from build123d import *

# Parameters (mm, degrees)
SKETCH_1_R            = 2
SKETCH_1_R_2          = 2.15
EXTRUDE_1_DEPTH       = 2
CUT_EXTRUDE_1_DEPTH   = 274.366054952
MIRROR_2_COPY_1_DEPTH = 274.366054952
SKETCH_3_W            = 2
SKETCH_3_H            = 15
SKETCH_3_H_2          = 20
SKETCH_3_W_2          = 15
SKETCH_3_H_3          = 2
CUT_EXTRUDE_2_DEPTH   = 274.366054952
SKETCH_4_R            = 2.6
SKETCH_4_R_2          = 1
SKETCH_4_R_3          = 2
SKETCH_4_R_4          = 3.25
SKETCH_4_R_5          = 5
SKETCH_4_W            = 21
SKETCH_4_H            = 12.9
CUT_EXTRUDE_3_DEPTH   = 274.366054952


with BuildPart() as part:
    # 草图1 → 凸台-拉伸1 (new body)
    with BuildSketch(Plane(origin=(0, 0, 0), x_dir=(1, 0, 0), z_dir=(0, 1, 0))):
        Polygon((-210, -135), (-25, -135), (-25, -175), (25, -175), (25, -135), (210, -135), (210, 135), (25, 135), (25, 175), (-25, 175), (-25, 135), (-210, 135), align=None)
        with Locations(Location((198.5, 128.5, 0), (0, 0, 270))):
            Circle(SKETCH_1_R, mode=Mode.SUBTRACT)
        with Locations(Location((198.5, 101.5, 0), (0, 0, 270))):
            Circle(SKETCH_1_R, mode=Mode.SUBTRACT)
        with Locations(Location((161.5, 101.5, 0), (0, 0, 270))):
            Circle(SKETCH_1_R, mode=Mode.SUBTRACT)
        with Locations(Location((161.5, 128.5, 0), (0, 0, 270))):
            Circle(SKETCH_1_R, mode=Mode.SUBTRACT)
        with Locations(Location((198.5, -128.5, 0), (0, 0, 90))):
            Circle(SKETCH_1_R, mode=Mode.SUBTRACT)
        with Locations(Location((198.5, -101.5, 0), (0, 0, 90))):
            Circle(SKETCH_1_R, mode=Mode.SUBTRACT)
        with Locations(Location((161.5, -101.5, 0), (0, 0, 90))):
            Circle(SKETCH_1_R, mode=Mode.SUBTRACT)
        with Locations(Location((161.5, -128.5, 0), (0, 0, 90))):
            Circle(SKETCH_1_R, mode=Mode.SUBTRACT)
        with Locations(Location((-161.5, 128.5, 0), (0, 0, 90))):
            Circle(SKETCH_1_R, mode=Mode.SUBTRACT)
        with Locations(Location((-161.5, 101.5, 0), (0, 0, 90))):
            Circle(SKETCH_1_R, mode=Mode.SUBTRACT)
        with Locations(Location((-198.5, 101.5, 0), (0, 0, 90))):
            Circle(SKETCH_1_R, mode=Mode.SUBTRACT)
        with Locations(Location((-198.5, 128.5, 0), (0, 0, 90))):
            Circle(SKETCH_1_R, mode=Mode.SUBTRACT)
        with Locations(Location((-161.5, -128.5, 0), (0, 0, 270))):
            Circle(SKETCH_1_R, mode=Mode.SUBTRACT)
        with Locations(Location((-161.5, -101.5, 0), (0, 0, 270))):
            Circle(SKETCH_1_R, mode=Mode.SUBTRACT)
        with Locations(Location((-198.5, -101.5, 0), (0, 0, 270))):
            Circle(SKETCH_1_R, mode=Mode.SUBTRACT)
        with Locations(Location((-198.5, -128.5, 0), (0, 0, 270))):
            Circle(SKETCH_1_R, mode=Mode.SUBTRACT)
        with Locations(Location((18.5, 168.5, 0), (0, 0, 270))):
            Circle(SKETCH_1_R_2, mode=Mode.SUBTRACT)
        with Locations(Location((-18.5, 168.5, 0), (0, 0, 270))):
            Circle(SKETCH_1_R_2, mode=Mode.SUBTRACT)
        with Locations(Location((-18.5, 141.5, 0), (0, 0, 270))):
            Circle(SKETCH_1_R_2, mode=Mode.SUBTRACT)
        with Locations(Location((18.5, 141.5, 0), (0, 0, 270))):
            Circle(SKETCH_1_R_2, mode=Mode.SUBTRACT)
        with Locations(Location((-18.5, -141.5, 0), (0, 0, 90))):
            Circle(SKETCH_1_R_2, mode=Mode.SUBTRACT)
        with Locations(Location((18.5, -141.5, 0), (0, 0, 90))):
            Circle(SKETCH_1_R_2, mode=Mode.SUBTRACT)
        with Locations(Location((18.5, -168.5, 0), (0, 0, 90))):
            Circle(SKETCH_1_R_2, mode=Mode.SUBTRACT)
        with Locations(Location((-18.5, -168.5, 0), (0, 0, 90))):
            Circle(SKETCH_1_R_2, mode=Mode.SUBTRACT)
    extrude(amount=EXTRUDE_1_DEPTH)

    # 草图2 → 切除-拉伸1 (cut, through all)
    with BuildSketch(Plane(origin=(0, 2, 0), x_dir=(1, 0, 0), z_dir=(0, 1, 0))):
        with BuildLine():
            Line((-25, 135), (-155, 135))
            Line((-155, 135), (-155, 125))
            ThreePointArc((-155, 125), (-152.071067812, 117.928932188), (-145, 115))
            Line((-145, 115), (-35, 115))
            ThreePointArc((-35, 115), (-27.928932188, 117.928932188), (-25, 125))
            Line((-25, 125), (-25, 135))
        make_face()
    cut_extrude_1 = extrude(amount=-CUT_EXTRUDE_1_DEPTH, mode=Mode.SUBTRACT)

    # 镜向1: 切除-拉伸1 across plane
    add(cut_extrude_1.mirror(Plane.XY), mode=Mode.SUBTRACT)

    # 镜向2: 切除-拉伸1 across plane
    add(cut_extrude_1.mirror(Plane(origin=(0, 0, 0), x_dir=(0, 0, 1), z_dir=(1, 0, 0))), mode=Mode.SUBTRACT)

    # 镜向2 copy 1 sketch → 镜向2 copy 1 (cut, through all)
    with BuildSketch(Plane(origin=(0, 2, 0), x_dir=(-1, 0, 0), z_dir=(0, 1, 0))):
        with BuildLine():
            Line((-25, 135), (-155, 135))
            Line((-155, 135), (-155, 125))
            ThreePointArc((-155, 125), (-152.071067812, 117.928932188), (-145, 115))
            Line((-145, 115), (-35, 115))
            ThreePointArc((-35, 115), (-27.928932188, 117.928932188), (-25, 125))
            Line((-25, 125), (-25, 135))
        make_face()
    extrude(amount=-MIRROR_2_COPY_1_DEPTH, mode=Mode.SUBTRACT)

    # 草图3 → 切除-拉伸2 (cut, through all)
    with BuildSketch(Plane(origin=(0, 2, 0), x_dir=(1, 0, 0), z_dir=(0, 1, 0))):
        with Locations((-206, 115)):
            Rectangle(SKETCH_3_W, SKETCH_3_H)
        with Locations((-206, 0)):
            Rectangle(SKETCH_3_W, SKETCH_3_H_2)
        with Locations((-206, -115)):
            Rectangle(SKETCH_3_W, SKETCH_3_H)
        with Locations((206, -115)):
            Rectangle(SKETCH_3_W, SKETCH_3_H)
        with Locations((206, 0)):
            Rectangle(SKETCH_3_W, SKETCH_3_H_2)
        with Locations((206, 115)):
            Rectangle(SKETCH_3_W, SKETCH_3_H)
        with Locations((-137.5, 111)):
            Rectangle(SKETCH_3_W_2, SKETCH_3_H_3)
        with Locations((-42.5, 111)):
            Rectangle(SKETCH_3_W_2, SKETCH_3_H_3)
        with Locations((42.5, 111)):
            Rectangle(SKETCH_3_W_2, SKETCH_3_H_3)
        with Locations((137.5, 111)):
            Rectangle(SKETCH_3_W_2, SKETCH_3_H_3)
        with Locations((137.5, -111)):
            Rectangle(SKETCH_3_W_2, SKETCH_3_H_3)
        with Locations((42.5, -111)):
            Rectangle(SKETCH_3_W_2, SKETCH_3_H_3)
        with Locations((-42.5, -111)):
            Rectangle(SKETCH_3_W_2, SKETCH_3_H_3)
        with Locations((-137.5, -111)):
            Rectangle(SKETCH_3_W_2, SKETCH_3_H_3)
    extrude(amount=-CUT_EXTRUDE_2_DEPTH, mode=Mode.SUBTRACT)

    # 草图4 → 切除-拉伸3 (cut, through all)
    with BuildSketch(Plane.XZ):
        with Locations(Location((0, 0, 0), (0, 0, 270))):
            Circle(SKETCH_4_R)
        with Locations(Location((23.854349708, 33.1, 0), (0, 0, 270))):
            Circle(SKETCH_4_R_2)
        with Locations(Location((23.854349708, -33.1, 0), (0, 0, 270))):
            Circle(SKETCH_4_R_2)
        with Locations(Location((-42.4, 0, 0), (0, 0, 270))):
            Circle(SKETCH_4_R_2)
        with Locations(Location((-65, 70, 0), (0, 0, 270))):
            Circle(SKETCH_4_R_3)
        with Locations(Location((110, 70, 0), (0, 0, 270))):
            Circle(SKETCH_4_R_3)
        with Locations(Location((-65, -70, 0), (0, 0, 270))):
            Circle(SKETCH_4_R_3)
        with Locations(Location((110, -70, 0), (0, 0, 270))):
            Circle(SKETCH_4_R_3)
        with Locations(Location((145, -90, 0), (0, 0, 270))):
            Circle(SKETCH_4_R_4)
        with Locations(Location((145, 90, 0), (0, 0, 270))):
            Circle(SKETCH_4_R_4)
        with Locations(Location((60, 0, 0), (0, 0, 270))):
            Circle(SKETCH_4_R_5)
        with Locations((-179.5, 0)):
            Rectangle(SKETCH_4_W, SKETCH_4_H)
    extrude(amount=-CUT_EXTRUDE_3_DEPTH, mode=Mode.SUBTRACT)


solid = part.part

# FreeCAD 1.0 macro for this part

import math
import FreeCAD as App
import Part
import Sketcher


def add_polygon(sketch, points):
    """Adds a closed chain of lines whose ends are joined by coincident constraints."""
    first, n = sketch.GeometryCount, len(points)
    for a, b in zip(points, points[1:] + points[:1]):
        sketch.addGeometry(Part.LineSegment(App.Vector(*a, 0), App.Vector(*b, 0)), False)
    for i in range(n):
        sketch.addConstraint(Sketcher.Constraint("Coincident", first + i, 2, first + (i + 1) % n, 1))

doc = App.newDocument("Part")
body = doc.addObject("PartDesign::Body", "Body")

# Sketch on XZ plane
sketch1 = body.newObject("Sketcher::SketchObject", "Sketch")
sketch1.AttachmentSupport = (doc.getObject("XZ_Plane"), [""])
sketch1.MapMode = "FlatFace"
add_polygon(sketch1, [(-210, 135), (-25, 135), (-25, 175), (25, 175), (25, 135), (210, 135), (210, -135), (25, -135), (25, -175), (-25, -175), (-25, -135), (-210, -135)])  # lines 0-11
sketch1.addGeometry(Part.Circle(App.Vector(-198.5, 128.5, 0), App.Vector(0, 0, 1), 2), False)  # 12
sketch1.addGeometry(Part.Circle(App.Vector(-161.5, 128.5, 0), App.Vector(0, 0, 1), 2), False)  # 13
sketch1.addGeometry(Part.Circle(App.Vector(-198.5, 101.5, 0), App.Vector(0, 0, 1), 2), False)  # 14
sketch1.addGeometry(Part.Circle(App.Vector(-161.5, 101.5, 0), App.Vector(0, 0, 1), 2), False)  # 15
sketch1.addGeometry(Part.Circle(App.Vector(-18.5, 168.5, 0), App.Vector(0, 0, 1), 2.1), False)  # 16
sketch1.addGeometry(Part.Circle(App.Vector(-18.5, 141.5, 0), App.Vector(0, 0, 1), 2.1), False)  # 17
sketch1.addGeometry(Part.Circle(App.Vector(18.5, 168.5, 0), App.Vector(0, 0, 1), 2.1), False)  # 18
sketch1.addGeometry(Part.Circle(App.Vector(18.5, 141.5, 0), App.Vector(0, 0, 1), 2.1), False)  # 19
sketch1.addGeometry(Part.Circle(App.Vector(161.5, 128.5, 0), App.Vector(0, 0, 1), 2), False)  # 20
sketch1.addGeometry(Part.Circle(App.Vector(198.5, 128.5, 0), App.Vector(0, 0, 1), 2), False)  # 21
sketch1.addGeometry(Part.Circle(App.Vector(161.5, 101.5, 0), App.Vector(0, 0, 1), 2), False)  # 22
sketch1.addGeometry(Part.Circle(App.Vector(198.5, 101.5, 0), App.Vector(0, 0, 1), 2), False)  # 23
sketch1.addGeometry(Part.Circle(App.Vector(-198.5, -101.5, 0), App.Vector(0, 0, 1), 2), False)  # 24
sketch1.addGeometry(Part.Circle(App.Vector(-161.5, -101.5, 0), App.Vector(0, 0, 1), 2), False)  # 25
sketch1.addGeometry(Part.Circle(App.Vector(-198.5, -128.5, 0), App.Vector(0, 0, 1), 2), False)  # 26
sketch1.addGeometry(Part.Circle(App.Vector(-161.5, -128.5, 0), App.Vector(0, 0, 1), 2), False)  # 27
sketch1.addGeometry(Part.Circle(App.Vector(-18.5, -141.5, 0), App.Vector(0, 0, 1), 2.1), False)  # 28
sketch1.addGeometry(Part.Circle(App.Vector(-18.5, -168.5, 0), App.Vector(0, 0, 1), 2.1), False)  # 29
sketch1.addGeometry(Part.Circle(App.Vector(18.5, -141.5, 0), App.Vector(0, 0, 1), 2.1), False)  # 30
sketch1.addGeometry(Part.Circle(App.Vector(18.5, -168.5, 0), App.Vector(0, 0, 1), 2.1), False)  # 31
sketch1.addGeometry(Part.Circle(App.Vector(161.5, -101.5, 0), App.Vector(0, 0, 1), 2), False)  # 32
sketch1.addGeometry(Part.Circle(App.Vector(198.5, -101.5, 0), App.Vector(0, 0, 1), 2), False)  # 33
sketch1.addGeometry(Part.Circle(App.Vector(161.5, -128.5, 0), App.Vector(0, 0, 1), 2), False)  # 34
sketch1.addGeometry(Part.Circle(App.Vector(198.5, -128.5, 0), App.Vector(0, 0, 1), 2), False)  # 35
sketch1.addConstraint([
    Sketcher.Constraint("Horizontal", 0),
    Sketcher.Constraint("Vertical", 1),
    Sketcher.Constraint("Horizontal", 2),
    Sketcher.Constraint("Vertical", 3),
    Sketcher.Constraint("Horizontal", 4),
    Sketcher.Constraint("Vertical", 5),
    Sketcher.Constraint("Horizontal", 6),
    Sketcher.Constraint("Vertical", 7),
    Sketcher.Constraint("Horizontal", 8),
    Sketcher.Constraint("Vertical", 9),
    Sketcher.Constraint("Horizontal", 10),
    Sketcher.Constraint("Vertical", 11),
    Sketcher.Constraint("Equal", 12, 13),
    Sketcher.Constraint("Equal", 13, 14),
    Sketcher.Constraint("Equal", 14, 15),
    Sketcher.Constraint("Equal", 16, 17),
    Sketcher.Constraint("Equal", 17, 18),
    Sketcher.Constraint("Equal", 18, 19),
    Sketcher.Constraint("Equal", 15, 20),
    Sketcher.Constraint("Equal", 20, 21),
    Sketcher.Constraint("Equal", 21, 22),
    Sketcher.Constraint("Equal", 22, 23),
    Sketcher.Constraint("Equal", 23, 24),
    Sketcher.Constraint("Equal", 24, 25),
    Sketcher.Constraint("Equal", 25, 26),
    Sketcher.Constraint("Equal", 26, 27),
    Sketcher.Constraint("Equal", 19, 28),
    Sketcher.Constraint("Equal", 28, 29),
    Sketcher.Constraint("Equal", 29, 30),
    Sketcher.Constraint("Equal", 30, 31),
    Sketcher.Constraint("Equal", 27, 32),
    Sketcher.Constraint("Equal", 32, 33),
    Sketcher.Constraint("Equal", 33, 34),
    Sketcher.Constraint("Equal", 34, 35),
    Sketcher.Constraint("Symmetric", 23, 3, 24, 3, -1, 1),
    Sketcher.Constraint("Symmetric", 22, 3, 25, 3, -1, 1),
    Sketcher.Constraint("Symmetric", 21, 3, 26, 3, -1, 1),
    Sketcher.Constraint("Symmetric", 20, 3, 27, 3, -1, 1),
    Sketcher.Constraint("Symmetric", 19, 3, 28, 3, -1, 1),
    Sketcher.Constraint("Symmetric", 18, 3, 29, 3, -1, 1),
    Sketcher.Constraint("Symmetric", 17, 3, 30, 3, -1, 1),
    Sketcher.Constraint("Symmetric", 16, 3, 31, 3, -1, 1),
    Sketcher.Constraint("Symmetric", 15, 3, 32, 3, -1, 1),
    Sketcher.Constraint("Symmetric", 14, 3, 33, 3, -1, 1),
    Sketcher.Constraint("Symmetric", 13, 3, 34, 3, -1, 1),
    Sketcher.Constraint("Symmetric", 12, 3, 35, 3, -1, 1),
    Sketcher.Constraint("Symmetric", 0, 2, 6, 2, -1, 1),
    Sketcher.Constraint("Symmetric", 2, 2, 8, 2, -1, 1),
    Sketcher.Constraint("Symmetric", 4, 2, 10, 2, -1, 1),
    Sketcher.Constraint("Symmetric", 16, 3, 18, 3, -2),
    Sketcher.Constraint("Symmetric", 17, 3, 19, 3, -2),
    Sketcher.Constraint("Symmetric", 13, 3, 20, 3, -2),
    Sketcher.Constraint("Symmetric", 12, 3, 21, 3, -2),
    Sketcher.Constraint("Symmetric", 15, 3, 22, 3, -2),
    Sketcher.Constraint("Symmetric", 14, 3, 23, 3, -2),
    Sketcher.Constraint("Symmetric", 0, 2, 3, 2, -2),
    Sketcher.Constraint("Horizontal", 12, 3, 13, 3),
    Sketcher.Constraint("Horizontal", 14, 3, 15, 3),
    Sketcher.Constraint("Vertical", 12, 3, 14, 3),
    Sketcher.Constraint("Vertical", 13, 3, 15, 3),
    Sketcher.Constraint("Vertical", 16, 3, 17, 3),
    Sketcher.Constraint("Diameter", 12, 4.0),
    Sketcher.Constraint("Diameter", 16, 4.3),
    Sketcher.Constraint("DistanceX", 0, 1, 0, 2, 185.0),
    Sketcher.Constraint("DistanceX", 2, 1, 2, 2, 50.0),
    Sketcher.Constraint("DistanceY", 1, 1, 1, 2, 40.0),
    Sketcher.Constraint("DistanceY", 5, 2, 5, 1, 270.0),
    Sketcher.Constraint("DistanceX", 12, 3, 13, 3, 37.0),
    Sketcher.Constraint("DistanceY", 14, 3, 12, 3, 27.0),
    Sketcher.Constraint("DistanceX", 13, 3, 16, 3, 143.0),
    Sketcher.Constraint("DistanceY", 13, 3, 16, 3, 40.0),
    Sketcher.Constraint("DistanceY", 17, 3, 16, 3, 27.0),
    Sketcher.Constraint("DistanceX", 16, 3, 18, 3, 37.0),
    Sketcher.Constraint("DistanceY", 24, 3, 14, 3, 203.0),
])
pad1 = body.newObject("PartDesign::Pad", "Pad")
pad1.Profile = sketch1
pad1.Length = 2
pad1.Reversed = True

# Sketch on XZ plane
sketch2 = body.newObject("Sketcher::SketchObject", "Sketch001")
sketch2.AttachmentSupport = (doc.getObject("XZ_Plane"), [""])
sketch2.MapMode = "FlatFace"
sketch2.AttachmentOffset = App.Placement(App.Vector(0, 0, -2), App.Rotation())
sketch2.addGeometry([
    Part.LineSegment(App.Vector(-25, -135, 0), App.Vector(-155, -135, 0)),  # 0
    Part.LineSegment(App.Vector(-155, -135, 0), App.Vector(-155, -125, 0)),  # 1
    Part.ArcOfCircle(Part.Circle(App.Vector(-145, -125, 0), App.Vector(0, 0, 1), 10), math.radians(90), math.radians(180)),  # 2
    Part.LineSegment(App.Vector(-145, -115, 0), App.Vector(-35, -115, 0)),  # 3
    Part.ArcOfCircle(Part.Circle(App.Vector(-35, -125, 0), App.Vector(0, 0, 1), 10), math.radians(0), math.radians(90)),  # 4
    Part.LineSegment(App.Vector(-25, -125, 0), App.Vector(-25, -135, 0)),  # 5
], False)
sketch2.addConstraint([
    Sketcher.Constraint("Coincident", 0, 2, 1, 1),
    Sketcher.Constraint("Tangent", 1, 2, 2, 2),
    Sketcher.Constraint("Tangent", 2, 1, 3, 1),
    Sketcher.Constraint("Tangent", 3, 2, 4, 2),
    Sketcher.Constraint("Tangent", 4, 1, 5, 1),
    Sketcher.Constraint("Coincident", 5, 2, 0, 1),
    Sketcher.Constraint("Horizontal", 0),
    Sketcher.Constraint("Vertical", 1),
    Sketcher.Constraint("Horizontal", 3),
    Sketcher.Constraint("Vertical", 5),
    Sketcher.Constraint("Equal", 2, 4),
    Sketcher.Constraint("Radius", 2, 10.0),
    Sketcher.Constraint("DistanceX", 0, 2, 0, 1, 130.0),
    Sketcher.Constraint("DistanceY", 1, 1, 1, 2, 10.0),
    Sketcher.Constraint("DistanceX", 2, 3, -1, 1, 145.0),
    Sketcher.Constraint("DistanceY", 2, 3, -1, 1, 125.0),
])
pocket1 = body.newObject("PartDesign::Pocket", "Pocket")
pocket1.Profile = sketch2
pocket1.Type = "ThroughAll"
pocket1.Reversed = True
doc.recompute()

mirrored = body.newObject("PartDesign::Mirrored", "Mirrored")
mirrored.Originals = [pocket1]
mirrored.MirrorPlane = (doc.getObject("XY_Plane"), [""])
body.Tip = mirrored
doc.recompute()

mirrored2 = body.newObject("PartDesign::Mirrored", "Mirrored001")
mirrored2.Originals = [pocket1]
mirrored2.MirrorPlane = (doc.getObject("YZ_Plane"), [""])
body.Tip = mirrored2

# Sketch on XZ plane
sketch3 = body.newObject("Sketcher::SketchObject", "Sketch002")
sketch3.AttachmentSupport = (doc.getObject("XZ_Plane"), [""])
sketch3.MapMode = "FlatFace"
sketch3.AttachmentOffset = App.Placement(App.Vector(0, 0, -2), App.Rotation())
sketch3.addGeometry([
    Part.LineSegment(App.Vector(25, 135, 0), App.Vector(155, 135, 0)),  # 0
    Part.LineSegment(App.Vector(155, 135, 0), App.Vector(155, 125, 0)),  # 1
    Part.ArcOfCircle(Part.Circle(App.Vector(145, 125, 0), App.Vector(0, 0, 1), 10), math.radians(-90), math.radians(0)),  # 2
    Part.LineSegment(App.Vector(145, 115, 0), App.Vector(35, 115, 0)),  # 3
    Part.ArcOfCircle(Part.Circle(App.Vector(35, 125, 0), App.Vector(0, 0, 1), 10), math.radians(180), math.radians(270)),  # 4
    Part.LineSegment(App.Vector(25, 125, 0), App.Vector(25, 135, 0)),  # 5
], False)
sketch3.addConstraint([
    Sketcher.Constraint("Coincident", 0, 2, 1, 1),
    Sketcher.Constraint("Tangent", 1, 2, 2, 2),
    Sketcher.Constraint("Tangent", 2, 1, 3, 1),
    Sketcher.Constraint("Tangent", 3, 2, 4, 2),
    Sketcher.Constraint("Tangent", 4, 1, 5, 1),
    Sketcher.Constraint("Coincident", 5, 2, 0, 1),
    Sketcher.Constraint("Horizontal", 0),
    Sketcher.Constraint("Vertical", 1),
    Sketcher.Constraint("Horizontal", 3),
    Sketcher.Constraint("Vertical", 5),
    Sketcher.Constraint("Equal", 2, 4),
    Sketcher.Constraint("Radius", 2, 10.0),
    Sketcher.Constraint("DistanceX", 0, 1, 0, 2, 130.0),
    Sketcher.Constraint("DistanceY", 1, 2, 1, 1, 10.0),
    Sketcher.Constraint("DistanceX", -1, 1, 2, 3, 145.0),
    Sketcher.Constraint("DistanceY", -1, 1, 2, 3, 125.0),
])
pocket2 = body.newObject("PartDesign::Pocket", "Pocket001")
pocket2.Profile = sketch3
pocket2.Type = "ThroughAll"
pocket2.Reversed = True

# Sketch on XZ plane
sketch4 = body.newObject("Sketcher::SketchObject", "Sketch003")
sketch4.AttachmentSupport = (doc.getObject("XZ_Plane"), [""])
sketch4.MapMode = "FlatFace"
sketch4.AttachmentOffset = App.Placement(App.Vector(0, 0, -2), App.Rotation())
add_polygon(sketch4, [(-207, -122.5), (-207, -107.5), (-205, -107.5), (-205, -122.5)])  # lines 0-3
add_polygon(sketch4, [(-207, -10), (-207, 10), (-205, 10), (-205, -10)])  # lines 4-7
add_polygon(sketch4, [(-207, 107.5), (-207, 122.5), (-205, 122.5), (-205, 107.5)])  # lines 8-11
add_polygon(sketch4, [(205, 107.5), (205, 122.5), (207, 122.5), (207, 107.5)])  # lines 12-15
add_polygon(sketch4, [(205, -10), (205, 10), (207, 10), (207, -10)])  # lines 16-19
add_polygon(sketch4, [(205, -122.5), (205, -107.5), (207, -107.5), (207, -122.5)])  # lines 20-23
add_polygon(sketch4, [(-145, -112), (-145, -110), (-130, -110), (-130, -112)])  # lines 24-27
add_polygon(sketch4, [(-50, -112), (-50, -110), (-35, -110), (-35, -112)])  # lines 28-31
add_polygon(sketch4, [(35, -112), (35, -110), (50, -110), (50, -112)])  # lines 32-35
add_polygon(sketch4, [(130, -112), (130, -110), (145, -110), (145, -112)])  # lines 36-39
add_polygon(sketch4, [(130, 110), (130, 112), (145, 112), (145, 110)])  # lines 40-43
add_polygon(sketch4, [(35, 110), (35, 112), (50, 112), (50, 110)])  # lines 44-47
add_polygon(sketch4, [(-50, 110), (-50, 112), (-35, 112), (-35, 110)])  # lines 48-51
add_polygon(sketch4, [(-145, 110), (-145, 112), (-130, 112), (-130, 110)])  # lines 52-55
sketch4.addConstraint([
    Sketcher.Constraint("Vertical", 0),
    Sketcher.Constraint("Horizontal", 1),
    Sketcher.Constraint("Vertical", 2),
    Sketcher.Constraint("Horizontal", 3),
    Sketcher.Constraint("Vertical", 4),
    Sketcher.Constraint("Horizontal", 5),
    Sketcher.Constraint("Vertical", 6),
    Sketcher.Constraint("Horizontal", 7),
    Sketcher.Constraint("Vertical", 8),
    Sketcher.Constraint("Horizontal", 9),
    Sketcher.Constraint("Vertical", 10),
    Sketcher.Constraint("Horizontal", 11),
    Sketcher.Constraint("Vertical", 12),
    Sketcher.Constraint("Horizontal", 13),
    Sketcher.Constraint("Vertical", 14),
    Sketcher.Constraint("Horizontal", 15),
    Sketcher.Constraint("Vertical", 16),
    Sketcher.Constraint("Horizontal", 17),
    Sketcher.Constraint("Vertical", 18),
    Sketcher.Constraint("Horizontal", 19),
    Sketcher.Constraint("Vertical", 20),
    Sketcher.Constraint("Horizontal", 21),
    Sketcher.Constraint("Vertical", 22),
    Sketcher.Constraint("Horizontal", 23),
    Sketcher.Constraint("Vertical", 24),
    Sketcher.Constraint("Horizontal", 25),
    Sketcher.Constraint("Vertical", 26),
    Sketcher.Constraint("Horizontal", 27),
    Sketcher.Constraint("Vertical", 28),
    Sketcher.Constraint("Horizontal", 29),
    Sketcher.Constraint("Vertical", 30),
    Sketcher.Constraint("Horizontal", 31),
    Sketcher.Constraint("Vertical", 32),
    Sketcher.Constraint("Horizontal", 33),
    Sketcher.Constraint("Vertical", 34),
    Sketcher.Constraint("Horizontal", 35),
    Sketcher.Constraint("Vertical", 36),
    Sketcher.Constraint("Horizontal", 37),
    Sketcher.Constraint("Vertical", 38),
    Sketcher.Constraint("Horizontal", 39),
    Sketcher.Constraint("Vertical", 40),
    Sketcher.Constraint("Horizontal", 41),
    Sketcher.Constraint("Vertical", 42),
    Sketcher.Constraint("Horizontal", 43),
    Sketcher.Constraint("Vertical", 44),
    Sketcher.Constraint("Horizontal", 45),
    Sketcher.Constraint("Vertical", 46),
    Sketcher.Constraint("Horizontal", 47),
    Sketcher.Constraint("Vertical", 48),
    Sketcher.Constraint("Horizontal", 49),
    Sketcher.Constraint("Vertical", 50),
    Sketcher.Constraint("Horizontal", 51),
    Sketcher.Constraint("Vertical", 52),
    Sketcher.Constraint("Horizontal", 53),
    Sketcher.Constraint("Vertical", 54),
    Sketcher.Constraint("Horizontal", 55),
    Sketcher.Constraint("Symmetric", 2, 2, 12, 2, -1, 1),
    Sketcher.Constraint("Symmetric", 0, 2, 14, 2, -1, 1),
    Sketcher.Constraint("Symmetric", 6, 2, 16, 2, -1, 1),
    Sketcher.Constraint("Symmetric", 4, 2, 18, 2, -1, 1),
    Sketcher.Constraint("Symmetric", 10, 2, 20, 2, -1, 1),
    Sketcher.Constraint("Symmetric", 8, 2, 22, 2, -1, 1),
    Sketcher.Constraint("Symmetric", 26, 2, 40, 2, -1, 1),
    Sketcher.Constraint("Symmetric", 24, 2, 42, 2, -1, 1),
    Sketcher.Constraint("Symmetric", 30, 2, 44, 2, -1, 1),
    Sketcher.Constraint("Symmetric", 28, 2, 46, 2, -1, 1),
    Sketcher.Constraint("Symmetric", 34, 2, 48, 2, -1, 1),
    Sketcher.Constraint("Symmetric", 32, 2, 50, 2, -1, 1),
    Sketcher.Constraint("Symmetric", 38, 2, 52, 2, -1, 1),
    Sketcher.Constraint("Symmetric", 36, 2, 54, 2, -1, 1),
    Sketcher.Constraint("Symmetric", 9, 2, 12, 2, -2),
    Sketcher.Constraint("Symmetric", 11, 2, 14, 2, -2),
    Sketcher.Constraint("Symmetric", 29, 2, 32, 2, -2),
    Sketcher.Constraint("Symmetric", 31, 2, 34, 2, -2),
    Sketcher.Constraint("Symmetric", 25, 2, 36, 2, -2),
    Sketcher.Constraint("Symmetric", 27, 2, 38, 2, -2),
    Sketcher.Constraint("Horizontal", 5, 2, 16, 2),
    Sketcher.Constraint("Horizontal", 25, 2, 28, 2),
    Sketcher.Constraint("Horizontal", 27, 2, 30, 2),
    Sketcher.Constraint("Vertical", 3, 2, 4, 2),
    Sketcher.Constraint("Vertical", 2, 2, 5, 2),
    Sketcher.Constraint("Equal", 27, 29),
    Sketcher.Constraint("Equal", 55, 0),
    Sketcher.Constraint("Equal", 23, 24),
    Sketcher.Constraint("DistanceX", 1, 1, 1, 2, 2.0),
    Sketcher.Constraint("DistanceX", 25, 1, 25, 2, 15.0),
    Sketcher.Constraint("DistanceY", 4, 1, 4, 2, 20.0),
    Sketcher.Constraint("DistanceX", 0, 2, -1, 1, 207.0),
    Sketcher.Constraint("DistanceX", 24, 2, -1, 1, 145.0),
    Sketcher.Constraint("DistanceY", 24, 2, -1, 1, 110.0),
    Sketcher.Constraint("DistanceX", 28, 2, -1, 1, 50.0),
    Sketcher.Constraint("DistanceY", 0, 2, 8, 2, 230.0),
])
pocket3 = body.newObject("PartDesign::Pocket", "Pocket002")
pocket3.Profile = sketch4
pocket3.Type = "ThroughAll"
pocket3.Reversed = True

# Sketch on XZ plane
sketch5 = body.newObject("Sketcher::SketchObject", "Sketch004")
sketch5.AttachmentSupport = (doc.getObject("XZ_Plane"), [""])
sketch5.MapMode = "FlatFace"
sketch5.addGeometry(Part.Circle(App.Vector(0, 0, 0), App.Vector(0, 0, 1), 2.6), False)  # 0
sketch5.addGeometry(Part.Circle(App.Vector(23.9, 33.1, 0), App.Vector(0, 0, 1), 1), False)  # 1
sketch5.addGeometry(Part.Circle(App.Vector(23.9, -33.1, 0), App.Vector(0, 0, 1), 1), False)  # 2
sketch5.addGeometry(Part.Circle(App.Vector(-42.4, 0, 0), App.Vector(0, 0, 1), 1), False)  # 3
sketch5.addGeometry(Part.Circle(App.Vector(-65, 70, 0), App.Vector(0, 0, 1), 2), False)  # 4
sketch5.addGeometry(Part.Circle(App.Vector(110, 70, 0), App.Vector(0, 0, 1), 2), False)  # 5
sketch5.addGeometry(Part.Circle(App.Vector(-65, -70, 0), App.Vector(0, 0, 1), 2), False)  # 6
sketch5.addGeometry(Part.Circle(App.Vector(110, -70, 0), App.Vector(0, 0, 1), 2), False)  # 7
sketch5.addGeometry(Part.Circle(App.Vector(145, -90, 0), App.Vector(0, 0, 1), 3.2), False)  # 8
sketch5.addGeometry(Part.Circle(App.Vector(145, 90, 0), App.Vector(0, 0, 1), 3.2), False)  # 9
sketch5.addGeometry(Part.Circle(App.Vector(60, 0, 0), App.Vector(0, 0, 1), 5), False)  # 10
add_polygon(sketch5, [(-190, 6.5), (-190, -6.5), (-169, -6.5), (-169, 6.5)])  # lines 11-14
sketch5.addConstraint([
    Sketcher.Constraint("Vertical", 11),
    Sketcher.Constraint("Horizontal", 12),
    Sketcher.Constraint("Vertical", 13),
    Sketcher.Constraint("Horizontal", 14),
    Sketcher.Constraint("Coincident", 0, 3, -1, 1),
    Sketcher.Constraint("Equal", 1, 2),
    Sketcher.Constraint("Equal", 2, 3),
    Sketcher.Constraint("Equal", 4, 5),
    Sketcher.Constraint("Equal", 5, 6),
    Sketcher.Constraint("Equal", 6, 7),
    Sketcher.Constraint("Equal", 8, 9),
    Sketcher.Constraint("Symmetric", 1, 3, 2, 3, -1),
    Sketcher.Constraint("Symmetric", 4, 3, 6, 3, -1),
    Sketcher.Constraint("Symmetric", 5, 3, 7, 3, -1),
    Sketcher.Constraint("Symmetric", 8, 3, 9, 3, -1),
    Sketcher.Constraint("PointOnObject", 3, 3, -1),
    Sketcher.Constraint("PointOnObject", 10, 3, -1),
    Sketcher.Constraint("Horizontal", 4, 3, 5, 3),
    Sketcher.Constraint("Diameter", 1, 2.0),
    Sketcher.Constraint("Diameter", 4, 4.0),
    Sketcher.Constraint("Diameter", 10, 10.0),
    Sketcher.Constraint("Diameter", 0, 5.2),
    Sketcher.Constraint("Diameter", 8, 6.5),
    Sketcher.Constraint("DistanceX", 12, 1, 12, 2, 21.0),
    Sketcher.Constraint("DistanceY", 11, 2, 11, 1, 12.9),
    Sketcher.Constraint("DistanceX", 4, 3, -1, 1, 65.0),
    Sketcher.Constraint("DistanceY", -1, 1, 4, 3, 70.0),
    Sketcher.Constraint("DistanceX", -1, 1, 5, 3, 110.0),
    Sketcher.Constraint("DistanceX", -1, 1, 8, 3, 145.0),
    Sketcher.Constraint("DistanceY", 8, 3, -1, 1, 90.0),
    Sketcher.Constraint("DistanceX", -1, 1, 10, 3, 60.0),
    Sketcher.Constraint("DistanceX", 11, 2, -1, 1, 190.0),
    Sketcher.Constraint("DistanceY", -1, 1, 1, 3, 33.1),
    Sketcher.Constraint("DistanceX", 3, 3, -1, 1, 42.4),
    Sketcher.Constraint("DistanceY", 11, 2, -1, 1, 6.45),
    Sketcher.Constraint("DistanceX", -1, 1, 1, 3, 23.85435),
])
pocket4 = body.newObject("PartDesign::Pocket", "Pocket003")
pocket4.Profile = sketch5
pocket4.Type = "ThroughAll"

doc.recompute()
